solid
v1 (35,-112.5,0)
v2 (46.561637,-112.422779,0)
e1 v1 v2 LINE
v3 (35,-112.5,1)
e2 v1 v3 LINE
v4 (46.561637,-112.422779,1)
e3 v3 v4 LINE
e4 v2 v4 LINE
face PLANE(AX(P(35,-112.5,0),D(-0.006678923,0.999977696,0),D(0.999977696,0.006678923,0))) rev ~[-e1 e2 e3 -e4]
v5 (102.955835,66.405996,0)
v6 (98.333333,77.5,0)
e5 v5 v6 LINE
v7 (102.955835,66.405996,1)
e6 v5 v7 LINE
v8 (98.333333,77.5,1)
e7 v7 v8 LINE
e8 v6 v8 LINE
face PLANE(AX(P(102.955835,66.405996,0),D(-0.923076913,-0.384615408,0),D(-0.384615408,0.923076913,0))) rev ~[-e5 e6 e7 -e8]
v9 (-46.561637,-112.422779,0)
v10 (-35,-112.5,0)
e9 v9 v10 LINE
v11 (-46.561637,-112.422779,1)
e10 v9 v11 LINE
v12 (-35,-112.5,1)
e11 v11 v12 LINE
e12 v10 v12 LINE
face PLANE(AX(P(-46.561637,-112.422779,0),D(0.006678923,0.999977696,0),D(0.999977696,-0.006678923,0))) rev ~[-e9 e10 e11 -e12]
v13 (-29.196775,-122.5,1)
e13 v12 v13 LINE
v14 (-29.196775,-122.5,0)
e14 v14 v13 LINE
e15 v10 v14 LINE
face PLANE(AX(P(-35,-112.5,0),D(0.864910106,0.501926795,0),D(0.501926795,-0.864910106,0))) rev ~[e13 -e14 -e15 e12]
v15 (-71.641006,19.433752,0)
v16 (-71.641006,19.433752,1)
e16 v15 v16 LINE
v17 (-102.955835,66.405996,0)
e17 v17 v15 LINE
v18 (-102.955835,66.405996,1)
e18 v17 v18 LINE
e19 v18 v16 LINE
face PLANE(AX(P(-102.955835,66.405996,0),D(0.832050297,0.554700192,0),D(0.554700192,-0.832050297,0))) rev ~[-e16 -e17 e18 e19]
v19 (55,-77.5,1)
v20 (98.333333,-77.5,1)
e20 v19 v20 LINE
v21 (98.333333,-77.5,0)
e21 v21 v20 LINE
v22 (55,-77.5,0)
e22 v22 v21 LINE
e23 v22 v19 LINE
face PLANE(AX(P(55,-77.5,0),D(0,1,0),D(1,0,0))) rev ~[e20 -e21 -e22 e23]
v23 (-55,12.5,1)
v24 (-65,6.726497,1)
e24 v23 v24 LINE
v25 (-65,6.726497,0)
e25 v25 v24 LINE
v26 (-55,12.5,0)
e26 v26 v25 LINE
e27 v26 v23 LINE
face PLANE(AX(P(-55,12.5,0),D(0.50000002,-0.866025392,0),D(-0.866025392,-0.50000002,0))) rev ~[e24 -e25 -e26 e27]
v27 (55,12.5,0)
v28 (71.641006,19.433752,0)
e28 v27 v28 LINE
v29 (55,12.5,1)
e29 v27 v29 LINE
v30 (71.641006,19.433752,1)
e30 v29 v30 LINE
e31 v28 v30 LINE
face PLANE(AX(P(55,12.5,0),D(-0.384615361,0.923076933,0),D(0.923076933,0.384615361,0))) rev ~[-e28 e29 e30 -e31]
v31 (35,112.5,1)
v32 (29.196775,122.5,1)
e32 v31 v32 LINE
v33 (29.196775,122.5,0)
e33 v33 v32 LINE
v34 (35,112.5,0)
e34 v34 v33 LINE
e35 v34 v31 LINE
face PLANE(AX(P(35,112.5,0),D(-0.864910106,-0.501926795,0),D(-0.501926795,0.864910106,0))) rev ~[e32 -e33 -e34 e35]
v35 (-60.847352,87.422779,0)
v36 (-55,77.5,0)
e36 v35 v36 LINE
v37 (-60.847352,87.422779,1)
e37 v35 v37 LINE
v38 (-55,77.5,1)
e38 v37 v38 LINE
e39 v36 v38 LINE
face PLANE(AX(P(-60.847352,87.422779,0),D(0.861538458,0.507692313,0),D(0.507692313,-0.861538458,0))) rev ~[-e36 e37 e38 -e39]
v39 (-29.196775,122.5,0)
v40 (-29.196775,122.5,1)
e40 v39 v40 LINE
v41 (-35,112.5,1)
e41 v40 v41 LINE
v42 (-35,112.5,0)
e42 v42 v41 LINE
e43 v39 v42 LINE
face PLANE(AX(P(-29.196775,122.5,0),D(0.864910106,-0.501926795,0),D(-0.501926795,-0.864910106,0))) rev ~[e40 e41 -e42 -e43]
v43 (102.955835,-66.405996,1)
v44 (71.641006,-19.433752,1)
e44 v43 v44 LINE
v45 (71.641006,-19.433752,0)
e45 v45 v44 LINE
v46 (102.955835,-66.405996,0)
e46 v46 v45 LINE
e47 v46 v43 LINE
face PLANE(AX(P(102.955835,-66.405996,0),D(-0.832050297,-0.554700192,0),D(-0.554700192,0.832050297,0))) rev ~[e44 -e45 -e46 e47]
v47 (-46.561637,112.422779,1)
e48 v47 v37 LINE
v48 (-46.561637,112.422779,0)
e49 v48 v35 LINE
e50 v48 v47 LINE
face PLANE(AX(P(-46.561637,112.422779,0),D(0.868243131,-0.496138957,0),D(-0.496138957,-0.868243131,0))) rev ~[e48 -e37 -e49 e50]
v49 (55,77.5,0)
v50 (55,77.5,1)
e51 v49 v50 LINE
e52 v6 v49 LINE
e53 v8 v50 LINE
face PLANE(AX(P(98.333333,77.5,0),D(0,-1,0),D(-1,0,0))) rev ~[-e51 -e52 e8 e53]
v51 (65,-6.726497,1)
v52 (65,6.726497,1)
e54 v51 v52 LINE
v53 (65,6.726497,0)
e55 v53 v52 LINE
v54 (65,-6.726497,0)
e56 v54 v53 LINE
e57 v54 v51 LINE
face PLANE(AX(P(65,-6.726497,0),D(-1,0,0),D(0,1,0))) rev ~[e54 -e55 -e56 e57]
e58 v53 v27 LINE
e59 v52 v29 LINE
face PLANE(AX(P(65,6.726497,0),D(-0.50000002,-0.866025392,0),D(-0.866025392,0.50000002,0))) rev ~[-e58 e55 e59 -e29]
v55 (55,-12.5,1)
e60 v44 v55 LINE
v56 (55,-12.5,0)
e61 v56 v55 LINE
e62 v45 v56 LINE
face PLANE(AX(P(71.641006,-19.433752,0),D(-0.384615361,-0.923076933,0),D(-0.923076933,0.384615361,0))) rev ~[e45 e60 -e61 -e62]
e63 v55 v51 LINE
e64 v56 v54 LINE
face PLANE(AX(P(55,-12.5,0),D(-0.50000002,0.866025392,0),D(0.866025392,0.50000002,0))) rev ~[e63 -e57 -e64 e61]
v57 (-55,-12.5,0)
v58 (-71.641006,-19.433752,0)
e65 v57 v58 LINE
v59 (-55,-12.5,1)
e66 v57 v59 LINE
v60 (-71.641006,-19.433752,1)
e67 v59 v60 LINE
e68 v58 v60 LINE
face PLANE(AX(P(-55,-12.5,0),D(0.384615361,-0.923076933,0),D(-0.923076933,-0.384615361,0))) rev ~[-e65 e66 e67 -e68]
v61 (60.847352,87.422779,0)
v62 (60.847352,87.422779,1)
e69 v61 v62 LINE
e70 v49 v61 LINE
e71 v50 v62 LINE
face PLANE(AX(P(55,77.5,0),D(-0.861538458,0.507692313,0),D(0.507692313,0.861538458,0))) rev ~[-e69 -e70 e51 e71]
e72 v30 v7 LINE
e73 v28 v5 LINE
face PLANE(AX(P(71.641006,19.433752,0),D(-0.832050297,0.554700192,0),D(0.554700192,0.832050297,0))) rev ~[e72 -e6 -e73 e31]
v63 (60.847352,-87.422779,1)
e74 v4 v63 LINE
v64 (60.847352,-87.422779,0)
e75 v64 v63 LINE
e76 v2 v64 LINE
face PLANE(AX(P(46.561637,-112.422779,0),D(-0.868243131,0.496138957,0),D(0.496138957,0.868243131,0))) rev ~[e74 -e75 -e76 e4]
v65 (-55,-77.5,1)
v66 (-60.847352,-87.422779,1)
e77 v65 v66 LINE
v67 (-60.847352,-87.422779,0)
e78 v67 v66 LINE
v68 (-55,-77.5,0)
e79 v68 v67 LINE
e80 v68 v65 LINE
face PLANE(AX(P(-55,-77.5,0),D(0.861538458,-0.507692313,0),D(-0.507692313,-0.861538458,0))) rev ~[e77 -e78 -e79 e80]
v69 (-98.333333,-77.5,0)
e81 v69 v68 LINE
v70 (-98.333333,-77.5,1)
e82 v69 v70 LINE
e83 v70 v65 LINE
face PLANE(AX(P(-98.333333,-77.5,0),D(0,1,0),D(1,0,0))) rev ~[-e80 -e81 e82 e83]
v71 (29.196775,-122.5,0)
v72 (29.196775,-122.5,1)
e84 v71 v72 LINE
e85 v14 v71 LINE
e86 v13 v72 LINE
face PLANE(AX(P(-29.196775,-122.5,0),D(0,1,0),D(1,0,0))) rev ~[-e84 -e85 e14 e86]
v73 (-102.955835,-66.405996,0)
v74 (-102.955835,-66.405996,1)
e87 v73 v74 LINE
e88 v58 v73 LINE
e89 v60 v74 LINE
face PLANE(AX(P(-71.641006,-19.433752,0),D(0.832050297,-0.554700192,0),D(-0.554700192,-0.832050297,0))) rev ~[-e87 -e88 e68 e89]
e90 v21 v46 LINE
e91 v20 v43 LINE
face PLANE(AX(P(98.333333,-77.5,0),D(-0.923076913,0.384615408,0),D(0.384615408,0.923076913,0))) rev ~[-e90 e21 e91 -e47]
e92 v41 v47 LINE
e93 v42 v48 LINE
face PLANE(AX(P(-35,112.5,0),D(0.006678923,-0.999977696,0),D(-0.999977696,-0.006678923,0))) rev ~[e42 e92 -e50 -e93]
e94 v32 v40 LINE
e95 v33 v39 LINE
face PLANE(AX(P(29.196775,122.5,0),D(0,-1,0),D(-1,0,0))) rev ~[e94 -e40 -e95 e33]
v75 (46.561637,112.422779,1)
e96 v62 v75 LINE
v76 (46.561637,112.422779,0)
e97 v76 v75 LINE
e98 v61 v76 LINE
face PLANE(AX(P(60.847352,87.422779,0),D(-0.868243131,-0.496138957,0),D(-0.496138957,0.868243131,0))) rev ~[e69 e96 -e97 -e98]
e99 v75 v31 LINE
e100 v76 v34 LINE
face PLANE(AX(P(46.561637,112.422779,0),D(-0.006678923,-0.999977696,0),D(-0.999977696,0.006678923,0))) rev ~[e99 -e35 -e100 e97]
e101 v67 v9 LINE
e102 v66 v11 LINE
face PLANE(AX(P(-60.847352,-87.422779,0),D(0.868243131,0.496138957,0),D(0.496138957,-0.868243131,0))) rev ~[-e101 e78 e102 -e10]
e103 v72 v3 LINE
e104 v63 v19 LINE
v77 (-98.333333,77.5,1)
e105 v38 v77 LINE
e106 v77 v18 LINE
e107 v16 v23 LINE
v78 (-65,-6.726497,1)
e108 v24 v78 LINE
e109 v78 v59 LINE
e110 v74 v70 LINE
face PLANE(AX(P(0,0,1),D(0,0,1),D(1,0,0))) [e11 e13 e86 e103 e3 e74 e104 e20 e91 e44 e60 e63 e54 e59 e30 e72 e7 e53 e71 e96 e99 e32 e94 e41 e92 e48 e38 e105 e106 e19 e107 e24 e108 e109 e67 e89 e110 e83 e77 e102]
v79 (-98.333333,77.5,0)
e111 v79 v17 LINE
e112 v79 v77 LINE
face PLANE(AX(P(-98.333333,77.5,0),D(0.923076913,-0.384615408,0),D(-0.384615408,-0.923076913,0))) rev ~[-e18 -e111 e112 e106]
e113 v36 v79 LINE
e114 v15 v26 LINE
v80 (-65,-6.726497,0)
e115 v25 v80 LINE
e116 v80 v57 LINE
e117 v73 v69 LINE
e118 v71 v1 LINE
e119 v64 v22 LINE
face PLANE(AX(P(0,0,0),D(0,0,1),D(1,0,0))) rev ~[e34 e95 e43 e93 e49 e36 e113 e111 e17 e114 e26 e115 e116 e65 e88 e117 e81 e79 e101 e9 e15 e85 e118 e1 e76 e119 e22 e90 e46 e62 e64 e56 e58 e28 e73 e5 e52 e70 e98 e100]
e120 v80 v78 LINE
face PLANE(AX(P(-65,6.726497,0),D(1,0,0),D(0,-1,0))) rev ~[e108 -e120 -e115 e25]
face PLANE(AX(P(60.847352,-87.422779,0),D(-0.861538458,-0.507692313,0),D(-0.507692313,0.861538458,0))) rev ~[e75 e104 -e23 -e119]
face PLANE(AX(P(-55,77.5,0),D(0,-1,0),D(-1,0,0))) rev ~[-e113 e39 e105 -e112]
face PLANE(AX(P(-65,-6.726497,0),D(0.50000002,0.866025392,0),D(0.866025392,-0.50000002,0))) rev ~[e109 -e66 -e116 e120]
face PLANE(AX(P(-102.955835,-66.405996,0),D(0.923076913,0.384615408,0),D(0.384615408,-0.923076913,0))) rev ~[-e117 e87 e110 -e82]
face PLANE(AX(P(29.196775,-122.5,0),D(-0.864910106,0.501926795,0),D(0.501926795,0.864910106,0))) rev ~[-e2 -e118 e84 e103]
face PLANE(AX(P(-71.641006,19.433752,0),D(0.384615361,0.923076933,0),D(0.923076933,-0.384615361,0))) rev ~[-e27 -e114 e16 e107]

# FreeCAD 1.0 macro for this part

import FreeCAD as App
import Part
import Sketcher

V = App.Vector
Q = App.Units.Quantity

doc = App.newDocument("Part")
params = doc.addObject("Spreadsheet::Sheet", "Params")
for row, (alias, value) in enumerate([
    ("pad1_length", "1 mm"),
], start=1):
    params.set(f"A{row}", alias)
    params.set(f"B{row}", "=" + value)
    params.setAlias(f"B{row}", alias)

body = doc.addObject("PartDesign::Body", "Body")

sketch1 = doc.addObject("Sketcher::SketchObject", "Sketch")
body.addObject(sketch1)
sketch1.AttachmentSupport = (doc.XY_Plane, [""])
sketch1.MapMode = "FlatFace"
sketch1.addGeometry(Part.LineSegment(V(-98, -78, 0), V(-55, -78, 0)), False)
sketch1.addGeometry(Part.LineSegment(V(-55, -78, 0), V(-61, -87, 0)), False)
sketch1.addGeometry(Part.LineSegment(V(-61, -87, 0), V(-47, -112, 0)), False)
sketch1.addGeometry(Part.LineSegment(V(-47, -112, 0), V(-35, -112, 0)), False)
sketch1.addGeometry(Part.LineSegment(V(-35, -112, 0), V(-29, -122, 0)), False)
sketch1.addGeometry(Part.LineSegment(V(-29, -122, 0), V(29, -122, 0)), False)
sketch1.addGeometry(Part.LineSegment(V(29, -122, 0), V(35, -112, 0)), False)
sketch1.addGeometry(Part.LineSegment(V(35, -112, 0), V(47, -112, 0)), False)
sketch1.addGeometry(Part.LineSegment(V(47, -112, 0), V(61, -87, 0)), False)
sketch1.addGeometry(Part.LineSegment(V(61, -87, 0), V(55, -78, 0)), False)
sketch1.addGeometry(Part.LineSegment(V(55, -78, 0), V(98, -78, 0)), False)
sketch1.addGeometry(Part.LineSegment(V(98, -78, 0), V(103, -66, 0)), False)
sketch1.addGeometry(Part.LineSegment(V(103, -66, 0), V(72, -19, 0)), False)
sketch1.addGeometry(Part.LineSegment(V(72, -19, 0), V(55, -12, 0)), False)
sketch1.addGeometry(Part.LineSegment(V(55, -12, 0), V(65, -7, 0)), False)
sketch1.addGeometry(Part.LineSegment(V(65, -7, 0), V(65, 7, 0)), False)
sketch1.addGeometry(Part.LineSegment(V(65, 7, 0), V(55, 12, 0)), False)
sketch1.addGeometry(Part.LineSegment(V(55, 12, 0), V(72, 19, 0)), False)
sketch1.addGeometry(Part.LineSegment(V(72, 19, 0), V(103, 66, 0)), False)
sketch1.addGeometry(Part.LineSegment(V(103, 66, 0), V(98, 78, 0)), False)
sketch1.addGeometry(Part.LineSegment(V(98, 78, 0), V(55, 78, 0)), False)
sketch1.addGeometry(Part.LineSegment(V(55, 78, 0), V(61, 87, 0)), False)
sketch1.addGeometry(Part.LineSegment(V(61, 87, 0), V(47, 112, 0)), False)
sketch1.addGeometry(Part.LineSegment(V(47, 112, 0), V(35, 112, 0)), False)
sketch1.addGeometry(Part.LineSegment(V(35, 112, 0), V(29, 122, 0)), False)
sketch1.addGeometry(Part.LineSegment(V(29, 122, 0), V(-29, 122, 0)), False)
sketch1.addGeometry(Part.LineSegment(V(-29, 122, 0), V(-35, 112, 0)), False)
sketch1.addGeometry(Part.LineSegment(V(-35, 112, 0), V(-47, 112, 0)), False)
sketch1.addGeometry(Part.LineSegment(V(-47, 112, 0), V(-61, 87, 0)), False)
sketch1.addGeometry(Part.LineSegment(V(-61, 87, 0), V(-55, 78, 0)), False)
sketch1.addGeometry(Part.LineSegment(V(-55, 78, 0), V(-98, 78, 0)), False)
sketch1.addGeometry(Part.LineSegment(V(-98, 78, 0), V(-103, 66, 0)), False)
sketch1.addGeometry(Part.LineSegment(V(-103, 66, 0), V(-72, 19, 0)), False)
sketch1.addGeometry(Part.LineSegment(V(-72, 19, 0), V(-55, 12, 0)), False)
sketch1.addGeometry(Part.LineSegment(V(-55, 12, 0), V(-65, 7, 0)), False)
sketch1.addGeometry(Part.LineSegment(V(-65, 7, 0), V(-65, -7, 0)), False)
sketch1.addGeometry(Part.LineSegment(V(-65, -7, 0), V(-55, -12, 0)), False)
sketch1.addGeometry(Part.LineSegment(V(-55, -12, 0), V(-72, -19, 0)), False)
sketch1.addGeometry(Part.LineSegment(V(-72, -19, 0), V(-103, -66, 0)), False)
sketch1.addGeometry(Part.LineSegment(V(-103, -66, 0), V(-98, -78, 0)), False)
sketch1.addConstraint(Sketcher.Constraint("Coincident", 0, 2, 1, 1))
sketch1.addConstraint(Sketcher.Constraint("Coincident", 1, 2, 2, 1))
sketch1.addConstraint(Sketcher.Constraint("Coincident", 2, 2, 3, 1))
sketch1.addConstraint(Sketcher.Constraint("Coincident", 3, 2, 4, 1))
sketch1.addConstraint(Sketcher.Constraint("Coincident", 4, 2, 5, 1))
sketch1.addConstraint(Sketcher.Constraint("Coincident", 5, 2, 6, 1))
sketch1.addConstraint(Sketcher.Constraint("Coincident", 6, 2, 7, 1))
sketch1.addConstraint(Sketcher.Constraint("Coincident", 7, 2, 8, 1))
sketch1.addConstraint(Sketcher.Constraint("Coincident", 8, 2, 9, 1))
sketch1.addConstraint(Sketcher.Constraint("Coincident", 9, 2, 10, 1))
sketch1.addConstraint(Sketcher.Constraint("Coincident", 10, 2, 11, 1))
sketch1.addConstraint(Sketcher.Constraint("Coincident", 11, 2, 12, 1))
sketch1.addConstraint(Sketcher.Constraint("Coincident", 12, 2, 13, 1))
sketch1.addConstraint(Sketcher.Constraint("Coincident", 13, 2, 14, 1))
sketch1.addConstraint(Sketcher.Constraint("Coincident", 14, 2, 15, 1))
sketch1.addConstraint(Sketcher.Constraint("Coincident", 15, 2, 16, 1))
sketch1.addConstraint(Sketcher.Constraint("Coincident", 16, 2, 17, 1))
sketch1.addConstraint(Sketcher.Constraint("Coincident", 17, 2, 18, 1))
sketch1.addConstraint(Sketcher.Constraint("Coincident", 18, 2, 19, 1))
sketch1.addConstraint(Sketcher.Constraint("Coincident", 19, 2, 20, 1))
sketch1.addConstraint(Sketcher.Constraint("Coincident", 20, 2, 21, 1))
sketch1.addConstraint(Sketcher.Constraint("Coincident", 21, 2, 22, 1))
sketch1.addConstraint(Sketcher.Constraint("Coincident", 22, 2, 23, 1))
sketch1.addConstraint(Sketcher.Constraint("Coincident", 23, 2, 24, 1))
sketch1.addConstraint(Sketcher.Constraint("Coincident", 24, 2, 25, 1))
sketch1.addConstraint(Sketcher.Constraint("Coincident", 25, 2, 26, 1))
sketch1.addConstraint(Sketcher.Constraint("Coincident", 26, 2, 27, 1))
sketch1.addConstraint(Sketcher.Constraint("Coincident", 27, 2, 28, 1))
sketch1.addConstraint(Sketcher.Constraint("Coincident", 28, 2, 29, 1))
sketch1.addConstraint(Sketcher.Constraint("Coincident", 29, 2, 30, 1))
sketch1.addConstraint(Sketcher.Constraint("Coincident", 30, 2, 31, 1))
sketch1.addConstraint(Sketcher.Constraint("Coincident", 31, 2, 32, 1))
sketch1.addConstraint(Sketcher.Constraint("Coincident", 32, 2, 33, 1))
sketch1.addConstraint(Sketcher.Constraint("Coincident", 33, 2, 34, 1))
sketch1.addConstraint(Sketcher.Constraint("Coincident", 34, 2, 35, 1))
sketch1.addConstraint(Sketcher.Constraint("Coincident", 35, 2, 36, 1))
sketch1.addConstraint(Sketcher.Constraint("Coincident", 36, 2, 37, 1))
sketch1.addConstraint(Sketcher.Constraint("Coincident", 37, 2, 38, 1))
sketch1.addConstraint(Sketcher.Constraint("Coincident", 38, 2, 39, 1))
sketch1.addConstraint(Sketcher.Constraint("Coincident", 39, 2, 0, 1))
sketch1.addConstraint(Sketcher.Constraint("Horizontal", 0))
sketch1.addConstraint(Sketcher.Constraint("Horizontal", 5))
sketch1.addConstraint(Sketcher.Constraint("Horizontal", 10))
sketch1.addConstraint(Sketcher.Constraint("Vertical", 15))
sketch1.addConstraint(Sketcher.Constraint("Horizontal", 20))
sketch1.addConstraint(Sketcher.Constraint("Horizontal", 25))
sketch1.addConstraint(Sketcher.Constraint("Horizontal", 30))
sketch1.addConstraint(Sketcher.Constraint("Vertical", 35))
sketch1.addConstraint(Sketcher.Constraint("Symmetric", 0, 2, 20, 2, -1, 1))
sketch1.addConstraint(Sketcher.Constraint("Symmetric", 1, 2, 21, 2, -1, 1))
sketch1.addConstraint(Sketcher.Constraint("Symmetric", 2, 2, 22, 2, -1, 1))
sketch1.addConstraint(Sketcher.Constraint("Symmetric", 3, 2, 23, 2, -1, 1))
sketch1.addConstraint(Sketcher.Constraint("Symmetric", 4, 2, 24, 2, -1, 1))
sketch1.addConstraint(Sketcher.Constraint("Symmetric", 6, 2, 26, 2, -1, 1))
sketch1.addConstraint(Sketcher.Constraint("Symmetric", 7, 2, 27, 2, -1, 1))
sketch1.addConstraint(Sketcher.Constraint("Symmetric", 8, 2, 28, 2, -1, 1))
sketch1.addConstraint(Sketcher.Constraint("Symmetric", 9, 2, 29, 2, -1, 1))
sketch1.addConstraint(Sketcher.Constraint("Symmetric", 11, 2, 31, 2, -1, 1))
sketch1.addConstraint(Sketcher.Constraint("Symmetric", 12, 2, 32, 2, -1, 1))
sketch1.addConstraint(Sketcher.Constraint("Symmetric", 13, 2, 33, 2, -1, 1))
sketch1.addConstraint(Sketcher.Constraint("Symmetric", 14, 2, 34, 2, -1, 1))
sketch1.addConstraint(Sketcher.Constraint("Symmetric", 16, 2, 36, 2, -1, 1))
sketch1.addConstraint(Sketcher.Constraint("Symmetric", 17, 2, 37, 2, -1, 1))
sketch1.addConstraint(Sketcher.Constraint("Symmetric", 18, 2, 38, 2, -1, 1))
sketch1.addConstraint(Sketcher.Constraint("Symmetric", 3, 2, 6, 2, -2))
sketch1.addConstraint(Sketcher.Constraint("Symmetric", 2, 2, 7, 2, -2))
sketch1.addConstraint(Sketcher.Constraint("Symmetric", 1, 2, 8, 2, -2))
sketch1.addConstraint(Sketcher.Constraint("Symmetric", 0, 2, 9, 2, -2))
sketch1.addConstraint(Sketcher.Constraint("Symmetric", 18, 2, 31, 2, -2))
sketch1.addConstraint(Sketcher.Constraint("Symmetric", 17, 2, 32, 2, -2))
sketch1.addConstraint(Sketcher.Constraint("Symmetric", 16, 2, 33, 2, -2))
sketch1.addConstraint(Sketcher.Constraint("Perpendicular", 11, 13))
sketch1.addConstraint(Sketcher.Constraint("Perpendicular", 17, 19))
sketch1.addConstraint(Sketcher.Constraint("Parallel", 6, 26))
sketch1.addConstraint(Sketcher.Constraint("Perpendicular", 13, 31))
sketch1.addConstraint(Sketcher.Constraint("Parallel", 16, 36))
sketch1.addConstraint(Sketcher.Constraint("Perpendicular", 37, 39))
sketch1.addConstraint(Sketcher.Constraint("Horizontal", 15, 2, 34, 2))
sketch1.addConstraint(Sketcher.Constraint("Vertical", 9, 2, 13, 2))
sketch1.addConstraint(Sketcher.Constraint("Vertical", 5, 2, 24, 2))
sketch1.addConstraint(Sketcher.Constraint("Equal", 3, 4))
sketch1.addConstraint(Sketcher.Constraint("Angle", 14, Q("30.000001 deg")))
sketch1.addConstraint(Sketcher.Constraint("DistanceX", 0, 2, -1, 1, Q("55 mm")))
sketch1.addConstraint(Sketcher.Constraint("DistanceX", 3, 2, -1, 1, Q("35 mm")))
sketch1.addConstraint(Sketcher.Constraint("DistanceX", -1, 1, 14, 2, Q("65 mm")))
sketch1.addConstraint(Sketcher.Constraint("DistanceY", 2, 2, 1, 2, Q("25 mm")))
sketch1.addConstraint(Sketcher.Constraint("DistanceY", 3, 2, 0, 2, Q("35 mm")))
sketch1.addConstraint(Sketcher.Constraint("DistanceY", 4, 2, 3, 2, Q("10 mm")))
sketch1.addConstraint(Sketcher.Constraint("DistanceY", 9, 2, 13, 2, Q("65 mm")))
sketch1.addConstraint(Sketcher.Constraint("DistanceY", 13, 2, 16, 2, Q("25 mm")))
sketch1.addConstraint(Sketcher.Constraint("DistanceX", 5, 1, 5, 2, Q("58.39355 mm")))
sketch1.addConstraint(Sketcher.Constraint("DistanceX", 10, 2, 11, 2, Q("4.622502 mm")))
sketch1.addConstraint(Sketcher.Constraint("DistanceY", 11, 2, 14, 2, Q("59.679499 mm")))
sketch1.addConstraint(Sketcher.Constraint("Distance", 1, Q("11.517511 mm")))
sketch1.addConstraint(Sketcher.Constraint("Distance", 2, Q("28.793778 mm")))
sketch1.addConstraint(Sketcher.Constraint("Distance", 12, Q("56.453611 mm")))
sketch1.addConstraint(Sketcher.Constraint("DistanceX", 0, 1, 0, 2, Q("43.333333 mm")))
pad1 = doc.addObject("PartDesign::Pad", "Pad")
body.addObject(pad1)
pad1.Profile = sketch1
pad1.setExpression("Length", "Params.pad1_length")

doc.recompute()
